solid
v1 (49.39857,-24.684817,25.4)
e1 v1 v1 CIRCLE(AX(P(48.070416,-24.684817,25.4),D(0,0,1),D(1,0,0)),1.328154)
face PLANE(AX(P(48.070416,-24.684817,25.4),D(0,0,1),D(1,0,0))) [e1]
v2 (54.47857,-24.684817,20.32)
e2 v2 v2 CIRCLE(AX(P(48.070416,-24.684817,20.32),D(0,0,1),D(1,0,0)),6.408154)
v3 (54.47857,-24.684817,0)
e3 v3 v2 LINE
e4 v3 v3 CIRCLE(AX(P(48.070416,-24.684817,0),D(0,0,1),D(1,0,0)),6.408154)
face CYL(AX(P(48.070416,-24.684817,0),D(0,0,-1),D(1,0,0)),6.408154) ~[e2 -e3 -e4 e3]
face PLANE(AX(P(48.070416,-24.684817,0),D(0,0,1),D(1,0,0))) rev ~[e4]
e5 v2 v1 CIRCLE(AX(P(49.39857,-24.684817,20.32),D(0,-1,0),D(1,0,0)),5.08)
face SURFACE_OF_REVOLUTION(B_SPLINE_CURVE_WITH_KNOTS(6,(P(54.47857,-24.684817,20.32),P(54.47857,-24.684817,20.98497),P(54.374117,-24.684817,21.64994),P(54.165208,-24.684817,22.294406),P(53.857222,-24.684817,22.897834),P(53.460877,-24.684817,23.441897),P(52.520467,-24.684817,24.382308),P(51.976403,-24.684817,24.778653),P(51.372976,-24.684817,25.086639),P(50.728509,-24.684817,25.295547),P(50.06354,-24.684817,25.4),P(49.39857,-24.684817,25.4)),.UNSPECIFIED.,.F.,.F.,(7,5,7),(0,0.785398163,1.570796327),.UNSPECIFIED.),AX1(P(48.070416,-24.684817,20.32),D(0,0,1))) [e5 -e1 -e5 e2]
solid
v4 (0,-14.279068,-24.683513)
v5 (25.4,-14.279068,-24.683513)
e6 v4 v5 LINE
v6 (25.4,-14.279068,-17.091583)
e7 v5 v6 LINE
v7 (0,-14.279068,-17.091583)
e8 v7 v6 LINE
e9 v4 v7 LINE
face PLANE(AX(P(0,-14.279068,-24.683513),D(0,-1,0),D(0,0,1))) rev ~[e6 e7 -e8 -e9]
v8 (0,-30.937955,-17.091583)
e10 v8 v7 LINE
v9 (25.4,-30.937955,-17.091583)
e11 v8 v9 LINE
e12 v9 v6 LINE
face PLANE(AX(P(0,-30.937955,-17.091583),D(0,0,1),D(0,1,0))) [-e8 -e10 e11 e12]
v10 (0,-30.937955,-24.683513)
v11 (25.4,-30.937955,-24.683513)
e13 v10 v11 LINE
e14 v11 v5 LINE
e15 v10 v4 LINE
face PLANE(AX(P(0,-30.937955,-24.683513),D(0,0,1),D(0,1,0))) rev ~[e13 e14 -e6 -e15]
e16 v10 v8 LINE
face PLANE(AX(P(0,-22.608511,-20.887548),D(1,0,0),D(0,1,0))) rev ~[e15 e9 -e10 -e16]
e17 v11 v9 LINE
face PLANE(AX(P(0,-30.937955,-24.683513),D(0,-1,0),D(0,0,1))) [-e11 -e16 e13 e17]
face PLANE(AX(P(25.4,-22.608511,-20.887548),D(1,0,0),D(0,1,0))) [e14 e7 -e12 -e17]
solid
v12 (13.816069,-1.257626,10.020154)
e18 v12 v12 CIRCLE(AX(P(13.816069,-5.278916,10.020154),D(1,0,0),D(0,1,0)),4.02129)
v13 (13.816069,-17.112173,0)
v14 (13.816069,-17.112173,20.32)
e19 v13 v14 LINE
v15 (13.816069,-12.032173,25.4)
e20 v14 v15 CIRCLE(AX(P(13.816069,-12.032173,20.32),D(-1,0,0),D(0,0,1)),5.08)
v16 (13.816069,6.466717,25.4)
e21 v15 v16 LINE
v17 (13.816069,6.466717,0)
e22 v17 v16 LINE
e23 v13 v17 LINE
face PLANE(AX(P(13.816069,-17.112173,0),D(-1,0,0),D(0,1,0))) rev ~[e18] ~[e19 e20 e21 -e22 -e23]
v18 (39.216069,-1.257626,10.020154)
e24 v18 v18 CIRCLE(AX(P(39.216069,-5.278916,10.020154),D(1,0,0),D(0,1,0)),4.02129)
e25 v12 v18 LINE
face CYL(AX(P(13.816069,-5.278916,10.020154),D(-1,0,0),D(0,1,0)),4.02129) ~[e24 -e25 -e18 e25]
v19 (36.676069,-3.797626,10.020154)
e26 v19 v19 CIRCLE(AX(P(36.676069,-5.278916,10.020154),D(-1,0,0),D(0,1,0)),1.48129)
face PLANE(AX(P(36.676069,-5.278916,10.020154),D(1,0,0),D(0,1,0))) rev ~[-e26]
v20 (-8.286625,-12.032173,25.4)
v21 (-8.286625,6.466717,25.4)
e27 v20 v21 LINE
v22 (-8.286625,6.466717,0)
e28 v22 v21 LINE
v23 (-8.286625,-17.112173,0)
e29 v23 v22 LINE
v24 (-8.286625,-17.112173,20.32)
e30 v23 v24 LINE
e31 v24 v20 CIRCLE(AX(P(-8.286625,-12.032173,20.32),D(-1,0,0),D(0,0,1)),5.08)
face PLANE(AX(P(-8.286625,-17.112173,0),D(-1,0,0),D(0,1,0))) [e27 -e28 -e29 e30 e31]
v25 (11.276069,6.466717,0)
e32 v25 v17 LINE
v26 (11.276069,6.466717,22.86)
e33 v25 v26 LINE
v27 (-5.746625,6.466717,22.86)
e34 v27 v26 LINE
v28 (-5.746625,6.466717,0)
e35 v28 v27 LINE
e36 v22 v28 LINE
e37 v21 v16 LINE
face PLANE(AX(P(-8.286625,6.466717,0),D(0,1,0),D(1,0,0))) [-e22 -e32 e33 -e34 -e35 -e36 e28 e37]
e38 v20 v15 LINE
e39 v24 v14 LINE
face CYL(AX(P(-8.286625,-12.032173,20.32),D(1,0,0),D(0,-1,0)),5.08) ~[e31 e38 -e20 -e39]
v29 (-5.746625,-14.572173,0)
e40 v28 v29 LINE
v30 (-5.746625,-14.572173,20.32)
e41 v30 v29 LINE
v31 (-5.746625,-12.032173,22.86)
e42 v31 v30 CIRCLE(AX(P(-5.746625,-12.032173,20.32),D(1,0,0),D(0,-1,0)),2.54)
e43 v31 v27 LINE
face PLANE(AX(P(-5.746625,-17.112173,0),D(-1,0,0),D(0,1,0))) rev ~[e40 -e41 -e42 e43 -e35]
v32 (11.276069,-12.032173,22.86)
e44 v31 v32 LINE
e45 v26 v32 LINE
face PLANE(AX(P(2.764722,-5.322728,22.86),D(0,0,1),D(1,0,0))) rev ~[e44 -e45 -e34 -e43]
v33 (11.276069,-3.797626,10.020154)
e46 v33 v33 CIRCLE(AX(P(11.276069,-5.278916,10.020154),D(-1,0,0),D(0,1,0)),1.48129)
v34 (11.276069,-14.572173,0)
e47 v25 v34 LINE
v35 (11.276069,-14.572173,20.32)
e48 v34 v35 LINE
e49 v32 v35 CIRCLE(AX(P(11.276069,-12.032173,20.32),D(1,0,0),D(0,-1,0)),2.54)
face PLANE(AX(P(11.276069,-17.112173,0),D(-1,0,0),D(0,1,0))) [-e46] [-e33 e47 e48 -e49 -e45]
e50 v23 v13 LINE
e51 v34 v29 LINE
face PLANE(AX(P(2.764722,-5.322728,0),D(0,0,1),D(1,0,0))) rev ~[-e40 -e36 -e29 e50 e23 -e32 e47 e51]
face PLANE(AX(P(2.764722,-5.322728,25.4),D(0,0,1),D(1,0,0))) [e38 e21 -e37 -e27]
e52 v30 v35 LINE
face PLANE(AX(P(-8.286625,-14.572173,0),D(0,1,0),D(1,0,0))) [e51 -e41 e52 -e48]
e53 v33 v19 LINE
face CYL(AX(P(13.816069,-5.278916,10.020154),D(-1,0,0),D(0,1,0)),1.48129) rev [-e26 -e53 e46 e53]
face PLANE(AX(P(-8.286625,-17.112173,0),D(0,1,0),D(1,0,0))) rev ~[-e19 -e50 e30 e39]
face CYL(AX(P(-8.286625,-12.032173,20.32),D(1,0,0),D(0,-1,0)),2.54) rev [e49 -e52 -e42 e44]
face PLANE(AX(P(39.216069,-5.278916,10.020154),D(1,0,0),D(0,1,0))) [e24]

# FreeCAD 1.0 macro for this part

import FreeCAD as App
import Part
import Sketcher
from FreeCAD import Vector
Q = App.Units.Quantity


def edges_at(feature, points):
    """Names of the edges that pass closest to the given points."""
    edges = feature.Shape.Edges
    near = lambda p: min(range(len(edges)), key=lambda i: edges[i].distToShape(Part.Vertex(*p))[0])
    return sorted({f"Edge{near(p) + 1}" for p in points})


def faces_at(feature, points):
    """Names of the faces that lie closest to the given points."""
    faces = feature.Shape.Faces
    near = lambda p: min(range(len(faces)), key=lambda i: faces[i].distToShape(Part.Vertex(*p))[0])
    return sorted({f"Face{near(p) + 1}" for p in points})

doc = App.newDocument("Part")
body = doc.addObject("PartDesign::Body", "Body")

# Sketch on XY plane
sketch1 = doc.addObject("Sketcher::SketchObject", "Sketch")
body.addObject(sketch1)
sketch1.AttachmentSupport = (doc.XY_Plane, [""])
sketch1.MapMode = "FlatFace"
sketch1.addGeometry(Part.LineSegment(Vector(-8.286625, 6.466717, 0), Vector(-8.286625, -17.112173, 0)), False)
sketch1.addGeometry(Part.LineSegment(Vector(-8.286625, -17.112173, 0), Vector(13.816069, -17.112173, 0)), False)
sketch1.addGeometry(Part.LineSegment(Vector(13.816069, -17.112173, 0), Vector(13.816069, 6.466717, 0)), False)
sketch1.addGeometry(Part.LineSegment(Vector(13.816069, 6.466717, 0), Vector(-8.286625, 6.466717, 0)), False)
sketch1.addConstraint(Sketcher.Constraint("Coincident", 0, 2, 1, 1))
sketch1.addConstraint(Sketcher.Constraint("Coincident", 1, 2, 2, 1))
sketch1.addConstraint(Sketcher.Constraint("Coincident", 2, 2, 3, 1))
sketch1.addConstraint(Sketcher.Constraint("Coincident", 3, 2, 0, 1))
sketch1.addConstraint(Sketcher.Constraint("Vertical", 0))
sketch1.addConstraint(Sketcher.Constraint("Horizontal", 1))
sketch1.addConstraint(Sketcher.Constraint("Vertical", 2))
sketch1.addConstraint(Sketcher.Constraint("Horizontal", 3))
sketch1.addConstraint(Sketcher.Constraint("DistanceY", 0, 2, 0, 1, Q("23.57889 mm")))
sketch1.addConstraint(Sketcher.Constraint("DistanceX", 1, 1, 1, 2, Q("22.102694 mm")))
sketch1.addConstraint(Sketcher.Constraint("DistanceX", -1, 1, 1, 2, Q("13.816069 mm")))
sketch1.addConstraint(Sketcher.Constraint("DistanceY", 0, 2, -1, 1, Q("17.112173 mm")))
pad1 = doc.addObject("PartDesign::Pad", "Pad")
body.addObject(pad1)
pad1.Profile = sketch1
pad1.Length = Q("1 in")
doc.recompute()

fillet = doc.addObject("PartDesign::Fillet", "Fillet")
body.addObject(fillet)
fillet.Base = (pad1, edges_at(pad1, [(2.765, -17.112, 25.4)]))
fillet.Radius = Q("0.2 in")

# Sketch on YZ plane
sketch2 = doc.addObject("Sketcher::SketchObject", "Sketch001")
body.addObject(sketch2)
sketch2.AttachmentSupport = (doc.YZ_Plane, [""])
sketch2.MapMode = "FlatFace"
sketch2.AttachmentOffset = App.Placement(Vector(0, 0, 13.816069), App.Rotation())
sketch2.addGeometry(Part.Circle(Vector(-5.278916, 10.020154, 0), Vector(0, 0, 1), 4.02129), False)
sketch2.addConstraint(Sketcher.Constraint("Diameter", 0, Q("8.04258 mm")))
sketch2.addConstraint(Sketcher.Constraint("DistanceX", 0, 3, -1, 1, Q("5.278916 mm")))
sketch2.addConstraint(Sketcher.Constraint("DistanceY", -1, 1, 0, 3, Q("10.020154 mm")))
pad2 = doc.addObject("PartDesign::Pad", "Pad001")
body.addObject(pad2)
pad2.Profile = sketch2
pad2.Length = Q("1 in")
doc.recompute()

thickness = doc.addObject("PartDesign::Thickness", "Thickness")
body.addObject(thickness)
thickness.Base = (pad2, faces_at(pad2, [(2.765, -5.323, 0), (2.765, 6.467, 12.7)]))
thickness.Value = Q("0.1 in")
thickness.Reversed = True
thickness.Join = "Intersection"
body2 = doc.addObject("PartDesign::Body", "Body001")

# Sketch on XY plane
sketch3 = doc.addObject("Sketcher::SketchObject", "Sketch002")
body2.addObject(sketch3)
sketch3.AttachmentSupport = (doc.getObject("XY_Plane001"), [""])
sketch3.MapMode = "FlatFace"
sketch3.addGeometry(Part.Circle(Vector(48.070416, -24.684817, 0), Vector(0, 0, 1), 6.408154), False)
sketch3.addConstraint(Sketcher.Constraint("Diameter", 0, Q("12.816308 mm")))
sketch3.addConstraint(Sketcher.Constraint("DistanceX", -1, 1, 0, 3, Q("48.070416 mm")))
sketch3.addConstraint(Sketcher.Constraint("DistanceY", 0, 3, -1, 1, Q("24.684817 mm")))
pad3 = doc.addObject("PartDesign::Pad", "Pad002")
body2.addObject(pad3)
pad3.Profile = sketch3
pad3.Length = Q("1 in")
doc.recompute()

fillet2 = doc.addObject("PartDesign::Fillet", "Fillet001")
body2.addObject(fillet2)
fillet2.Base = (pad3, edges_at(pad3, [(41.662, -24.685, 25.4)]))
fillet2.Radius = Q("0.2 in")
body3 = doc.addObject("PartDesign::Body", "Body002")

# Sketch on YZ plane
sketch4 = doc.addObject("Sketcher::SketchObject", "Sketch003")
body3.addObject(sketch4)
sketch4.AttachmentSupport = (doc.getObject("YZ_Plane002"), [""])
sketch4.MapMode = "FlatFace"
sketch4.addGeometry(Part.LineSegment(Vector(-30.937955, -17.091583, 0), Vector(-30.937955, -24.683513, 0)), False)
sketch4.addGeometry(Part.LineSegment(Vector(-30.937955, -24.683513, 0), Vector(-14.279068, -24.683513, 0)), False)
sketch4.addGeometry(Part.LineSegment(Vector(-14.279068, -24.683513, 0), Vector(-14.279068, -17.091583, 0)), False)
sketch4.addGeometry(Part.LineSegment(Vector(-14.279068, -17.091583, 0), Vector(-30.937955, -17.091583, 0)), False)
sketch4.addConstraint(Sketcher.Constraint("Coincident", 0, 2, 1, 1))
sketch4.addConstraint(Sketcher.Constraint("Coincident", 1, 2, 2, 1))
sketch4.addConstraint(Sketcher.Constraint("Coincident", 2, 2, 3, 1))
sketch4.addConstraint(Sketcher.Constraint("Coincident", 3, 2, 0, 1))
sketch4.addConstraint(Sketcher.Constraint("Vertical", 0))
sketch4.addConstraint(Sketcher.Constraint("Horizontal", 1))
sketch4.addConstraint(Sketcher.Constraint("Vertical", 2))
sketch4.addConstraint(Sketcher.Constraint("Horizontal", 3))
sketch4.addConstraint(Sketcher.Constraint("DistanceY", 0, 2, 0, 1, Q("7.591929 mm")))
sketch4.addConstraint(Sketcher.Constraint("DistanceX", 1, 1, 1, 2, Q("16.658887 mm")))
sketch4.addConstraint(Sketcher.Constraint("DistanceX", 0, 2, -1, 1, Q("30.937955 mm")))
sketch4.addConstraint(Sketcher.Constraint("DistanceY", 0, 2, -1, 1, Q("24.683513 mm")))
pad4 = doc.addObject("PartDesign::Pad", "Pad003")
body3.addObject(pad4)
pad4.Profile = sketch4
pad4.Length = Q("1 in")

doc.recompute()
